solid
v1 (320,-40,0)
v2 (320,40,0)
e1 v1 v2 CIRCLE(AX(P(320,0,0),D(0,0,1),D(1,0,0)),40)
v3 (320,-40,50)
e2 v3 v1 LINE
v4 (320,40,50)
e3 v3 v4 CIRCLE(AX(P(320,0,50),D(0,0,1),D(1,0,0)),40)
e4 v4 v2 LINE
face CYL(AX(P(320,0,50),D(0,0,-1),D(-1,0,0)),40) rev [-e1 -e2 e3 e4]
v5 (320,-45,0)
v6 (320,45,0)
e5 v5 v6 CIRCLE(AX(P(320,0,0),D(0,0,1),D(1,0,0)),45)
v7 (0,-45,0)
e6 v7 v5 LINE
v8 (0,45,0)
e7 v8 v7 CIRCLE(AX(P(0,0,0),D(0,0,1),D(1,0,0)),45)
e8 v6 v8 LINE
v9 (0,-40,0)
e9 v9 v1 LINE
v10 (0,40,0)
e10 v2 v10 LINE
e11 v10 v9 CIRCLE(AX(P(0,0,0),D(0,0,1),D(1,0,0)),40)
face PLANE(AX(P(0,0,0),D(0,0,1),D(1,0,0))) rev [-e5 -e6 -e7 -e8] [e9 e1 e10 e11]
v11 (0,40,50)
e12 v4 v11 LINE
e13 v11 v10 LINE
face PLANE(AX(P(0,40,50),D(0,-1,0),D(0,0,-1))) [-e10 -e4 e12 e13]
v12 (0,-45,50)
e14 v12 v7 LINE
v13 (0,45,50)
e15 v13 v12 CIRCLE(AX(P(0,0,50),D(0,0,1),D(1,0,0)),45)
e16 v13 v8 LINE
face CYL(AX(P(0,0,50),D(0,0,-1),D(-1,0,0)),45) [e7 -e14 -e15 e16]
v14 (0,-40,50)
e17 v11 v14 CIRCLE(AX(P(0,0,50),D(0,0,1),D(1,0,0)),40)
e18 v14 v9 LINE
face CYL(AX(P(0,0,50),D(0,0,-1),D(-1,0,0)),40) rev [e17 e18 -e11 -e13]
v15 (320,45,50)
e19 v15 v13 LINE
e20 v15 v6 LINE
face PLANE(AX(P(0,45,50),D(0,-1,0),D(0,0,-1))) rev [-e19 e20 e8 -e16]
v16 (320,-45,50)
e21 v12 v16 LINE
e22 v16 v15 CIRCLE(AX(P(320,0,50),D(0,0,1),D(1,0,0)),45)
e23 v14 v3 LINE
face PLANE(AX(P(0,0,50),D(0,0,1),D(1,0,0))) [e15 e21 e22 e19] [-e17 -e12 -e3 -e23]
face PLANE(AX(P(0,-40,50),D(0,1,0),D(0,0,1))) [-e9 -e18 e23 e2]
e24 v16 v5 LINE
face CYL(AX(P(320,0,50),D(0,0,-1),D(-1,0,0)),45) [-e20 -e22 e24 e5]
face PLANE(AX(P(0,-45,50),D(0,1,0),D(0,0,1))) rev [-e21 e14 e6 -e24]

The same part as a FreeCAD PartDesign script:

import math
import FreeCAD as App
import Part
import Sketcher

doc = App.newDocument("Part")
body = doc.addObject("PartDesign::Body", "Body")

sketch1 = body.newObject("Sketcher::SketchObject", "Sketch")
sketch1.AttachmentSupport = (doc.getObject("XY_Plane"), [""])
sketch1.MapMode = "FlatFace"
sketch1.addGeometry([
    Part.LineSegment(App.Vector(320, 45, 0), App.Vector(0, 45, 0)),
    Part.ArcOfCircle(Part.Circle(App.Vector(0, 0, 0), App.Vector(0, 0, 1), 45), math.radians(90), math.radians(270)),
    Part.LineSegment(App.Vector(0, -45, 0), App.Vector(320, -45, 0)),
    Part.ArcOfCircle(Part.Circle(App.Vector(320, 0, 0), App.Vector(0, 0, 1), 45), math.radians(-90), math.radians(90)),
    Part.LineSegment(App.Vector(0, 40, 0), App.Vector(320, 40, 0)),
    Part.ArcOfCircle(Part.Circle(App.Vector(320, 0, 0), App.Vector(0, 0, 1), 40), math.radians(-90), math.radians(90)),
    Part.LineSegment(App.Vector(320, -40, 0), App.Vector(0, -40, 0)),
    Part.ArcOfCircle(Part.Circle(App.Vector(0, 0, 0), App.Vector(0, 0, 1), 40), math.radians(90), math.radians(270)),
], False)
sketch1.addConstraint([
    Sketcher.Constraint("Tangent", 0, 2, 1, 1),
    Sketcher.Constraint("Tangent", 1, 2, 2, 1),
    Sketcher.Constraint("Tangent", 2, 2, 3, 1),
    Sketcher.Constraint("Tangent", 3, 2, 0, 1),
    Sketcher.Constraint("Tangent", 4, 2, 5, 2),
    Sketcher.Constraint("Tangent", 5, 1, 6, 1),
    Sketcher.Constraint("Tangent", 6, 2, 7, 2),
    Sketcher.Constraint("Tangent", 7, 1, 4, 1),
    Sketcher.Constraint("Horizontal", 0),
    Sketcher.Constraint("Horizontal", 2),
    Sketcher.Constraint("Horizontal", 4),
    Sketcher.Constraint("Horizontal", 6),
    Sketcher.Constraint("Coincident", 1, 3, -1, 1),
    Sketcher.Constraint("Coincident", 7, 3, -1, 1),
    Sketcher.Constraint("Vertical", 5, 3, 2, 2),
    Sketcher.Constraint("Radius", 1, 45.0),
    Sketcher.Constraint("Radius", 5, 40.0),
    Sketcher.Constraint("DistanceX", 0, 2, 0, 1, 320.0),
])
pad1 = body.newObject("PartDesign::Pad", "Pad")
pad1.Profile = sketch1
pad1.Length = 50

doc.recompute()
